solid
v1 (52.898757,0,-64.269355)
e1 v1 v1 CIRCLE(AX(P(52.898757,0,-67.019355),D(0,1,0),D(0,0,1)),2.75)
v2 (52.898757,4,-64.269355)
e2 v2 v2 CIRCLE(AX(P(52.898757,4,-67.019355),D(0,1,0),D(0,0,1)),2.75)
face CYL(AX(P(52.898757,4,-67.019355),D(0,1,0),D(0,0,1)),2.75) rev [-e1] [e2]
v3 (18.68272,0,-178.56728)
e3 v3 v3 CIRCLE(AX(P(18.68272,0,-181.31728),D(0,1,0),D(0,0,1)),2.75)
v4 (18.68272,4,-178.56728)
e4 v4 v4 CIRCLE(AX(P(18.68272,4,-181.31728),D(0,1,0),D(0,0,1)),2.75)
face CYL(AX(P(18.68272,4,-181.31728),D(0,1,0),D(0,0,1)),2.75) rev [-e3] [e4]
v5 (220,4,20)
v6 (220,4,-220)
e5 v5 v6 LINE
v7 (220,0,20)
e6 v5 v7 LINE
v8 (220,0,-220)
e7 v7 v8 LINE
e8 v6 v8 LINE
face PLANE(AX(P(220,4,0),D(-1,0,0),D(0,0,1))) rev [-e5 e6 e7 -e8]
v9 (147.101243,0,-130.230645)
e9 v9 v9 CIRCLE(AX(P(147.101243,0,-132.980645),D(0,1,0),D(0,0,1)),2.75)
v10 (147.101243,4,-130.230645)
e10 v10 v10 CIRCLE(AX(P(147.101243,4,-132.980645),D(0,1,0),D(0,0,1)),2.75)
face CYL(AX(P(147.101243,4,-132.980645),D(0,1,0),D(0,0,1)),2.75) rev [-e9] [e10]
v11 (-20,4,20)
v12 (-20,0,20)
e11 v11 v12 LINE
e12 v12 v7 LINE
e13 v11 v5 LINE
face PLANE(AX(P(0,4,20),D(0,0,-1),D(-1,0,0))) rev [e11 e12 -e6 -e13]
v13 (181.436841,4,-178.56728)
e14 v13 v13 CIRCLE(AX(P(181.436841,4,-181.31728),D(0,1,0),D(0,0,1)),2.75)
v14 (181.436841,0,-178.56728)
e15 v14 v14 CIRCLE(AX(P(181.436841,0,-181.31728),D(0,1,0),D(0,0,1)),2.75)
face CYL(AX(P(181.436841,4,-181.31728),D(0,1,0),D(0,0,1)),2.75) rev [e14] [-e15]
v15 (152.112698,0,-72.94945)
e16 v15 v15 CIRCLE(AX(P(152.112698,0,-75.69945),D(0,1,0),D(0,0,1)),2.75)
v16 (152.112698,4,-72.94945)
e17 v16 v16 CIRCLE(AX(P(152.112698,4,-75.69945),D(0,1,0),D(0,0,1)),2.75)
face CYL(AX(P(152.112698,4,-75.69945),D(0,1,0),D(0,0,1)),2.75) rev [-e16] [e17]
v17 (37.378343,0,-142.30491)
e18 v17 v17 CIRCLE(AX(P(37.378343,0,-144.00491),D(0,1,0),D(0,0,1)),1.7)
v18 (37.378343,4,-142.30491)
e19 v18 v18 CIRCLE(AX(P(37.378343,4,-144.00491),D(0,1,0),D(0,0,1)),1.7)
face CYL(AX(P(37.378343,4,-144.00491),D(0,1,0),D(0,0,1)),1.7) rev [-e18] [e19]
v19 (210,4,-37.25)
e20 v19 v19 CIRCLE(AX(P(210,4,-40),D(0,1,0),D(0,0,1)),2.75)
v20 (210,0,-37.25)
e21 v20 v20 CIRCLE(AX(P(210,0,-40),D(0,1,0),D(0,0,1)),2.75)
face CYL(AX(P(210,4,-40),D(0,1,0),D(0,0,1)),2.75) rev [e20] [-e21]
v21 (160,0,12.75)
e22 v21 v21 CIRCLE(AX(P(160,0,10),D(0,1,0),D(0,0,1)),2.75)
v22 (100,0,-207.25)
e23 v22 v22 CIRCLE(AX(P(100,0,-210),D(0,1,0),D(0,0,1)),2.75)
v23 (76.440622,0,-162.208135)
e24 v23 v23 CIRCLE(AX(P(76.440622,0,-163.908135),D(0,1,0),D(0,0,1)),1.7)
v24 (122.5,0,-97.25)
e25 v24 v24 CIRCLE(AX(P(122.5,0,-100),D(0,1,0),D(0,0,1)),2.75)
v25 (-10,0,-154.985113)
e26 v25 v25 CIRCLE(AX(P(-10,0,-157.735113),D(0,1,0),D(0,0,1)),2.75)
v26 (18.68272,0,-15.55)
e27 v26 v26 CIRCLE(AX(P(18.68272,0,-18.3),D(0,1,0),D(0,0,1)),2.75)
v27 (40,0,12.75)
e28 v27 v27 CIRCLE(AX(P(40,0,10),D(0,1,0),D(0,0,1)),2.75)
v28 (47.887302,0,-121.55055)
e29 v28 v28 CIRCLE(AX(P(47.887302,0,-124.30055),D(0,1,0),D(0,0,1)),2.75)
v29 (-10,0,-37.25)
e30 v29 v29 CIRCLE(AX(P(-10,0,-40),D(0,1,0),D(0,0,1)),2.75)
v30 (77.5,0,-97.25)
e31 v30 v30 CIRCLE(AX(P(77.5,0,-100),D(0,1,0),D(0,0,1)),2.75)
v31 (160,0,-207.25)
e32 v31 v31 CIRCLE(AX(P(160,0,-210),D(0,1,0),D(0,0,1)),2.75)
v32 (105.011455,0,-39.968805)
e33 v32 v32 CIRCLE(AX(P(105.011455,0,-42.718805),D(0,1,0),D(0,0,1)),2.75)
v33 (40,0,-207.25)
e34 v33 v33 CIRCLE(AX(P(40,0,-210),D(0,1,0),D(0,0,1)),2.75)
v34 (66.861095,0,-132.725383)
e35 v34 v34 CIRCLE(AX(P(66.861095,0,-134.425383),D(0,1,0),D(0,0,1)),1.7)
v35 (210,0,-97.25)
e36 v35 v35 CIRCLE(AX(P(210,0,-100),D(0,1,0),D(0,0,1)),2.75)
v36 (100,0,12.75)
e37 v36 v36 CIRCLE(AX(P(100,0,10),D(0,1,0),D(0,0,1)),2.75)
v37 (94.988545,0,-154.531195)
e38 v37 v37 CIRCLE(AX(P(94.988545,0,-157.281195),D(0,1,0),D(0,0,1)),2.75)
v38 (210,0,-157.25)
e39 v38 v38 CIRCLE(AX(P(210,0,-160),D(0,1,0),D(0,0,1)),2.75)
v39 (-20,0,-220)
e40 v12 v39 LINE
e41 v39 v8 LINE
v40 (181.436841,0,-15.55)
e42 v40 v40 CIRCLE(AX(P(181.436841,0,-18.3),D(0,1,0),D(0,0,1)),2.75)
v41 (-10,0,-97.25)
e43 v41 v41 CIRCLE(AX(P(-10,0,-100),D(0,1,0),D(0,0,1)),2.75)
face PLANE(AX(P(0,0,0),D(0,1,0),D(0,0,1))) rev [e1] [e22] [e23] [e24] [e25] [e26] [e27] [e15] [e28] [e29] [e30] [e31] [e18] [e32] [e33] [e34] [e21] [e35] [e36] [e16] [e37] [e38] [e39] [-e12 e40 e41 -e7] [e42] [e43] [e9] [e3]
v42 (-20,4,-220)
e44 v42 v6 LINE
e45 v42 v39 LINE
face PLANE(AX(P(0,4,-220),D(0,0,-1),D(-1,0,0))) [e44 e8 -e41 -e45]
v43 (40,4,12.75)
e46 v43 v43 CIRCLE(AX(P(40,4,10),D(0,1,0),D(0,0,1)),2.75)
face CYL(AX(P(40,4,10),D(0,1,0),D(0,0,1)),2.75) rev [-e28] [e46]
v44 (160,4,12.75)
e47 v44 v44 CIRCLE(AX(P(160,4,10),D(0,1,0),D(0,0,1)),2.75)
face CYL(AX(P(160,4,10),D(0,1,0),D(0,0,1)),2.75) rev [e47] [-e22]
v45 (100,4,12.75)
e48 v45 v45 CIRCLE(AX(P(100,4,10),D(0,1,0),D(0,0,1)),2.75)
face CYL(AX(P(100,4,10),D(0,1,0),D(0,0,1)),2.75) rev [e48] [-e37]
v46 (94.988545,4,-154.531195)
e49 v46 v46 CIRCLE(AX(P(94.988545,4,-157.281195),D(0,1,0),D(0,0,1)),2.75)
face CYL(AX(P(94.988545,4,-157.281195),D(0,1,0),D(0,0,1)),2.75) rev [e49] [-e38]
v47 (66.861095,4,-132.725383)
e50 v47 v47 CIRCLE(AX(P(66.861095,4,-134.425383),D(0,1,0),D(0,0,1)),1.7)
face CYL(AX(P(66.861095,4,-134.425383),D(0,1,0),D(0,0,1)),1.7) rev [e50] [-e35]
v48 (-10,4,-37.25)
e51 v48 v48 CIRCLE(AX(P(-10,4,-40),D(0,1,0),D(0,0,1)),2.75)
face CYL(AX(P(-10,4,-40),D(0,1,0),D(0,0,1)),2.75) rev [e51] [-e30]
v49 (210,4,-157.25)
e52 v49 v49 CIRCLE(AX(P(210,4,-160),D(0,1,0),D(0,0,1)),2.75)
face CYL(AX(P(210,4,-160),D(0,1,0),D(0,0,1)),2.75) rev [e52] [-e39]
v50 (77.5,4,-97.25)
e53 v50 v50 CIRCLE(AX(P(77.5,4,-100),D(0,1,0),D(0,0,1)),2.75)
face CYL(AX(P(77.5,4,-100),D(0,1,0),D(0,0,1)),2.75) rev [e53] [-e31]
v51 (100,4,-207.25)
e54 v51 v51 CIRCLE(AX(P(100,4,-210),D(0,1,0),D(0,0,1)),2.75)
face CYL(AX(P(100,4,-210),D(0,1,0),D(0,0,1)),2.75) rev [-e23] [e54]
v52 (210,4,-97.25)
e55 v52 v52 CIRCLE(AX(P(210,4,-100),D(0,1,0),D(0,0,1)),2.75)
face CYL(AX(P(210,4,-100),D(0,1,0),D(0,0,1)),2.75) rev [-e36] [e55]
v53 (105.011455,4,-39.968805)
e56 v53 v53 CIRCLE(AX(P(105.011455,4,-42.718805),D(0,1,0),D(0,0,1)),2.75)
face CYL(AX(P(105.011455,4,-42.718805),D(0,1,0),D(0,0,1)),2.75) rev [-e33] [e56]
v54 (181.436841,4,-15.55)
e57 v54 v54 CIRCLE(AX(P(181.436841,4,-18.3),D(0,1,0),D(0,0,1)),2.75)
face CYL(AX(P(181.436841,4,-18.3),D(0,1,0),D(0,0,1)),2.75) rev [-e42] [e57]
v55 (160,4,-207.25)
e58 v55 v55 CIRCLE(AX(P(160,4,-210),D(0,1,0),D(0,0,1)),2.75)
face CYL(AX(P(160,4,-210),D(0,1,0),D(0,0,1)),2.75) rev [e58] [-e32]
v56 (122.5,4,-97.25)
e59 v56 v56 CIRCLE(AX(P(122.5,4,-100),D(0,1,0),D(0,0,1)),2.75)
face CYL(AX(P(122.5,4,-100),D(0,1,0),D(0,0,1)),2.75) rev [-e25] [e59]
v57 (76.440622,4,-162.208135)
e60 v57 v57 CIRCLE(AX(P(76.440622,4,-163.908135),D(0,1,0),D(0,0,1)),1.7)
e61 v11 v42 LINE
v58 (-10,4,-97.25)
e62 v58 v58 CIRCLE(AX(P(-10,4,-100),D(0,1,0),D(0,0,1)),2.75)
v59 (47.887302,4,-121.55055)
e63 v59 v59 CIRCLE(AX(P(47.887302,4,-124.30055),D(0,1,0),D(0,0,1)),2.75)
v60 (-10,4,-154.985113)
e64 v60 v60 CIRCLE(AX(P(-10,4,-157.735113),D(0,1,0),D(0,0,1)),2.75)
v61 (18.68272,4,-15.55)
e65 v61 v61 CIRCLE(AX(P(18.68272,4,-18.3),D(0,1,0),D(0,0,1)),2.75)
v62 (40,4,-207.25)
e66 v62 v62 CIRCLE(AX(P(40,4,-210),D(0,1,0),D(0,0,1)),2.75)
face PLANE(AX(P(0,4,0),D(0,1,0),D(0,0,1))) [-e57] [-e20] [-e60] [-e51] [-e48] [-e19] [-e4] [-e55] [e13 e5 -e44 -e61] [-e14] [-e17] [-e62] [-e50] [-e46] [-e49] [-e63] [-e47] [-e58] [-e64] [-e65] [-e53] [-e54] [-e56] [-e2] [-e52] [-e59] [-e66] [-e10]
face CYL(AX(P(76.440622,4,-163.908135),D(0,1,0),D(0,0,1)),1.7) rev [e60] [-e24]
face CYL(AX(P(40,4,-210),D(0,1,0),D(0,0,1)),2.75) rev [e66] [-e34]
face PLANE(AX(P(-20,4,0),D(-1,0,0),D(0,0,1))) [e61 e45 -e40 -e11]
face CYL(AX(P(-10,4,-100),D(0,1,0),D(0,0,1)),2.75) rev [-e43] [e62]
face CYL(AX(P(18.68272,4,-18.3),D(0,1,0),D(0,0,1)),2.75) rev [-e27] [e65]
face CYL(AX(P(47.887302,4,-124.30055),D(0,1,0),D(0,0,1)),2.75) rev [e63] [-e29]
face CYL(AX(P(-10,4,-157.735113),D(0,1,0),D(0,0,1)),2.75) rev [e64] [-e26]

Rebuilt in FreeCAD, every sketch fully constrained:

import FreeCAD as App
import Part
import Sketcher
from FreeCAD import Vector
Q = App.Units.Quantity


def add_polygon(sketch, points):
    """Adds a closed chain of lines whose ends are joined by coincident constraints."""
    first, n = sketch.GeometryCount, len(points)
    for a, b in zip(points, points[1:] + points[:1]):
        sketch.addGeometry(Part.LineSegment(App.Vector(*a, 0), App.Vector(*b, 0)), False)
    for i in range(n):
        sketch.addConstraint(Sketcher.Constraint("Coincident", first + i, 2, first + (i + 1) % n, 1))

doc = App.newDocument("Part")
body = doc.addObject("PartDesign::Body", "Body")

# Sketch on XZ plane
sketch1 = body.newObject("Sketcher::SketchObject", "Sketch")
sketch1.AttachmentSupport = (doc.getObject("XZ_Plane"), [""])
sketch1.MapMode = "FlatFace"
add_polygon(sketch1, [(-20, -220), (-20, 20), (220, 20), (220, -220)])  # lines 0-3
sketch1.addConstraint(Sketcher.Constraint("Vertical", 0))
sketch1.addConstraint(Sketcher.Constraint("Horizontal", 1))
sketch1.addConstraint(Sketcher.Constraint("Vertical", 2))
sketch1.addConstraint(Sketcher.Constraint("Horizontal", 3))
sketch1.addConstraint(Sketcher.Constraint("Equal", 3, 0))
sketch1.addConstraint(Sketcher.Constraint("DistanceX", 1, 1, 1, 2, Q("240 mm")))
sketch1.addConstraint(Sketcher.Constraint("DistanceX", 0, 2, -1, 1, Q("20 mm")))
sketch1.addConstraint(Sketcher.Constraint("DistanceY", -1, 1, 0, 2, Q("20 mm")))
pad1 = body.newObject("PartDesign::Pad", "Pad")
pad1.Profile = sketch1
pad1.Length = 4
pad1.Reversed = True

# Sketch on XZ plane
sketch2 = body.newObject("Sketcher::SketchObject", "Sketch001")
sketch2.AttachmentSupport = (doc.getObject("XZ_Plane"), [""])
sketch2.MapMode = "FlatFace"
sketch2.AttachmentOffset = App.Placement(Vector(0, 0, -4), App.Rotation())
sketch2.addGeometry(Part.Circle(Vector(18.7, -181.3, 0), Vector(0, 0, 1), 2.8), False)
sketch2.addGeometry(Part.Circle(Vector(181.4, -181.3, 0), Vector(0, 0, 1), 2.8), False)
sketch2.addGeometry(Part.Circle(Vector(181.4, -18.3, 0), Vector(0, 0, 1), 2.8), False)
sketch2.addGeometry(Part.Circle(Vector(18.7, -18.3, 0), Vector(0, 0, 1), 2.8), False)
sketch2.addGeometry(Part.Circle(Vector(40, -210, 0), Vector(0, 0, 1), 2.8), False)
sketch2.addGeometry(Part.Circle(Vector(100, -210, 0), Vector(0, 0, 1), 2.8), False)
sketch2.addGeometry(Part.Circle(Vector(160, -210, 0), Vector(0, 0, 1), 2.8), False)
sketch2.addGeometry(Part.Circle(Vector(210, -160, 0), Vector(0, 0, 1), 2.8), False)
sketch2.addGeometry(Part.Circle(Vector(210, -100, 0), Vector(0, 0, 1), 2.8), False)
sketch2.addGeometry(Part.Circle(Vector(210, -40, 0), Vector(0, 0, 1), 2.8), False)
sketch2.addGeometry(Part.Circle(Vector(160, 10, 0), Vector(0, 0, 1), 2.8), False)
sketch2.addGeometry(Part.Circle(Vector(100, 10, 0), Vector(0, 0, 1), 2.8), False)
sketch2.addGeometry(Part.Circle(Vector(40, 10, 0), Vector(0, 0, 1), 2.8), False)
sketch2.addGeometry(Part.Circle(Vector(-10, -40, 0), Vector(0, 0, 1), 2.8), False)
sketch2.addGeometry(Part.Circle(Vector(-10, -100, 0), Vector(0, 0, 1), 2.8), False)
sketch2.addGeometry(Part.Circle(Vector(-10, -157.7, 0), Vector(0, 0, 1), 2.8), False)
sketch2.addGeometry(Part.Circle(Vector(95, -157.3, 0), Vector(0, 0, 1), 2.8), False)
sketch2.addGeometry(Part.Circle(Vector(47.9, -124.3, 0), Vector(0, 0, 1), 2.8), False)
sketch2.addGeometry(Part.Circle(Vector(105, -42.7, 0), Vector(0, 0, 1), 2.8), False)
sketch2.addGeometry(Part.Circle(Vector(147.1, -133, 0), Vector(0, 0, 1), 2.8), False)
sketch2.addGeometry(Part.Circle(Vector(152.1, -75.7, 0), Vector(0, 0, 1), 2.8), False)
sketch2.addGeometry(Part.Circle(Vector(52.9, -67, 0), Vector(0, 0, 1), 2.8), False)
sketch2.addGeometry(Part.Circle(Vector(77.5, -100, 0), Vector(0, 0, 1), 2.8), False)
sketch2.addGeometry(Part.Circle(Vector(122.5, -100, 0), Vector(0, 0, 1), 2.8), False)
sketch2.addConstraint(Sketcher.Constraint("Equal", 0, 1))
sketch2.addConstraint(Sketcher.Constraint("Equal", 1, 2))
sketch2.addConstraint(Sketcher.Constraint("Equal", 2, 3))
sketch2.addConstraint(Sketcher.Constraint("Equal", 3, 4))
sketch2.addConstraint(Sketcher.Constraint("Equal", 4, 5))
sketch2.addConstraint(Sketcher.Constraint("Equal", 5, 6))
sketch2.addConstraint(Sketcher.Constraint("Equal", 6, 7))
sketch2.addConstraint(Sketcher.Constraint("Equal", 7, 8))
sketch2.addConstraint(Sketcher.Constraint("Equal", 8, 9))
sketch2.addConstraint(Sketcher.Constraint("Equal", 9, 10))
sketch2.addConstraint(Sketcher.Constraint("Equal", 10, 11))
sketch2.addConstraint(Sketcher.Constraint("Equal", 11, 12))
sketch2.addConstraint(Sketcher.Constraint("Equal", 12, 13))
sketch2.addConstraint(Sketcher.Constraint("Equal", 13, 14))
sketch2.addConstraint(Sketcher.Constraint("Equal", 14, 15))
sketch2.addConstraint(Sketcher.Constraint("Equal", 15, 16))
sketch2.addConstraint(Sketcher.Constraint("Equal", 16, 17))
sketch2.addConstraint(Sketcher.Constraint("Equal", 17, 18))
sketch2.addConstraint(Sketcher.Constraint("Equal", 18, 19))
sketch2.addConstraint(Sketcher.Constraint("Equal", 19, 20))
sketch2.addConstraint(Sketcher.Constraint("Equal", 20, 21))
sketch2.addConstraint(Sketcher.Constraint("Equal", 21, 22))
sketch2.addConstraint(Sketcher.Constraint("Equal", 22, 23))
sketch2.addConstraint(Sketcher.Constraint("Horizontal", 0, 3, 1, 3))
sketch2.addConstraint(Sketcher.Constraint("Horizontal", 2, 3, 3, 3))
sketch2.addConstraint(Sketcher.Constraint("Horizontal", 4, 3, 5, 3))
sketch2.addConstraint(Sketcher.Constraint("Horizontal", 5, 3, 6, 3))
sketch2.addConstraint(Sketcher.Constraint("Horizontal", 10, 3, 11, 3))
sketch2.addConstraint(Sketcher.Constraint("Horizontal", 11, 3, 12, 3))
sketch2.addConstraint(Sketcher.Constraint("Horizontal", 9, 3, 13, 3))
sketch2.addConstraint(Sketcher.Constraint("Horizontal", 8, 3, 14, 3))
sketch2.addConstraint(Sketcher.Constraint("Horizontal", 14, 3, 22, 3))
sketch2.addConstraint(Sketcher.Constraint("Horizontal", 22, 3, 23, 3))
sketch2.addConstraint(Sketcher.Constraint("Vertical", 1, 3, 2, 3))
sketch2.addConstraint(Sketcher.Constraint("Vertical", 0, 3, 3, 3))
sketch2.addConstraint(Sketcher.Constraint("Vertical", 7, 3, 8, 3))
sketch2.addConstraint(Sketcher.Constraint("Vertical", 8, 3, 9, 3))
sketch2.addConstraint(Sketcher.Constraint("Vertical", 6, 3, 10, 3))
sketch2.addConstraint(Sketcher.Constraint("Vertical", 5, 3, 11, 3))
sketch2.addConstraint(Sketcher.Constraint("Vertical", 4, 3, 12, 3))
sketch2.addConstraint(Sketcher.Constraint("Vertical", 13, 3, 14, 3))
sketch2.addConstraint(Sketcher.Constraint("Vertical", 14, 3, 15, 3))
sketch2.addConstraint(Sketcher.Constraint("Diameter", 0, Q("5.5 mm")))
sketch2.addConstraint(Sketcher.Constraint("DistanceX", -1, 1, 4, 3, Q("40 mm")))
sketch2.addConstraint(Sketcher.Constraint("DistanceY", 4, 3, -1, 1, Q("210 mm")))
sketch2.addConstraint(Sketcher.Constraint("DistanceX", -1, 1, 5, 3, Q("100 mm")))
sketch2.addConstraint(Sketcher.Constraint("DistanceX", -1, 1, 6, 3, Q("160 mm")))
sketch2.addConstraint(Sketcher.Constraint("DistanceX", -1, 1, 7, 3, Q("210 mm")))
sketch2.addConstraint(Sketcher.Constraint("DistanceY", 7, 3, -1, 1, Q("160 mm")))
sketch2.addConstraint(Sketcher.Constraint("DistanceY", 8, 3, -1, 1, Q("100 mm")))
sketch2.addConstraint(Sketcher.Constraint("DistanceY", 9, 3, -1, 1, Q("40 mm")))
sketch2.addConstraint(Sketcher.Constraint("DistanceY", -1, 1, 10, 3, Q("10 mm")))
sketch2.addConstraint(Sketcher.Constraint("DistanceX", 13, 3, -1, 1, Q("10 mm")))
sketch2.addConstraint(Sketcher.Constraint("DistanceX", 22, 3, 23, 3, Q("45 mm")))
sketch2.addConstraint(Sketcher.Constraint("DistanceY", 2, 3, -1, 1, Q("18.3 mm")))
sketch2.addConstraint(Sketcher.Constraint("DistanceX", -1, 1, 22, 3, Q("77.5 mm")))
sketch2.addConstraint(Sketcher.Constraint("DistanceX", 19, 3, 1, 3, Q("34.335599 mm")))
sketch2.addConstraint(Sketcher.Constraint("DistanceX", -1, 1, 0, 3, Q("18.68272 mm")))
sketch2.addConstraint(Sketcher.Constraint("DistanceY", 0, 3, -1, 1, Q("181.31728 mm")))
sketch2.addConstraint(Sketcher.Constraint("DistanceX", -1, 1, 1, 3, Q("181.436841 mm")))
sketch2.addConstraint(Sketcher.Constraint("DistanceY", 17, 3, -1, 1, Q("124.30055 mm")))
sketch2.addConstraint(Sketcher.Constraint("DistanceY", 20, 3, -1, 1, Q("75.69945 mm")))
sketch2.addConstraint(Sketcher.Constraint("DistanceY", 16, 3, 19, 3, Q("24.30055 mm")))
sketch2.addConstraint(Sketcher.Constraint("DistanceY", 21, 3, 18, 3, Q("24.30055 mm")))
sketch2.addConstraint(Sketcher.Constraint("DistanceY", 15, 3, -1, 1, Q("157.735113 mm")))
sketch2.addConstraint(Sketcher.Constraint("DistanceX", -1, 1, 16, 3, Q("94.988545 mm")))
sketch2.addConstraint(Sketcher.Constraint("DistanceY", 16, 3, -1, 1, Q("157.281195 mm")))
sketch2.addConstraint(Sketcher.Constraint("DistanceX", -1, 1, 17, 3, Q("47.887302 mm")))
sketch2.addConstraint(Sketcher.Constraint("DistanceX", -1, 1, 18, 3, Q("105.011455 mm")))
sketch2.addConstraint(Sketcher.Constraint("DistanceY", 18, 3, -1, 1, Q("42.718805 mm")))
sketch2.addConstraint(Sketcher.Constraint("DistanceX", -1, 1, 20, 3, Q("152.112698 mm")))
sketch2.addConstraint(Sketcher.Constraint("DistanceX", -1, 1, 21, 3, Q("52.898757 mm")))
doc.recompute()
hole = body.newObject("PartDesign::Hole", "Hole")
hole.Profile = sketch2
hole.ThreadType = "None"
hole.Diameter = 5.5
hole.DepthType = "ThroughAll"
hole.Reversed = True

# Sketch on XZ plane
sketch3 = body.newObject("Sketcher::SketchObject", "Sketch002")
sketch3.AttachmentSupport = (doc.getObject("XZ_Plane"), [""])
sketch3.MapMode = "FlatFace"
sketch3.AttachmentOffset = App.Placement(Vector(0, 0, -4), App.Rotation())
sketch3.addGeometry(Part.Circle(Vector(37.4, -144, 0), Vector(0, 0, 1), 1.7), False)
sketch3.addGeometry(Part.Circle(Vector(76.4, -163.9, 0), Vector(0, 0, 1), 1.7), False)
sketch3.addGeometry(Part.Circle(Vector(66.9, -134.4, 0), Vector(0, 0, 1), 1.7), False)
sketch3.addConstraint(Sketcher.Constraint("Equal", 0, 1))
sketch3.addConstraint(Sketcher.Constraint("Equal", 1, 2))
sketch3.addConstraint(Sketcher.Constraint("Diameter", 0, Q("3.4 mm")))
sketch3.addConstraint(Sketcher.Constraint("DistanceY", 0, 3, -1, 1, Q("144.00491 mm")))
sketch3.addConstraint(Sketcher.Constraint("DistanceX", -1, 1, 1, 3, Q("76.440622 mm")))
sketch3.addConstraint(Sketcher.Constraint("DistanceX", 0, 3, 1, 3, Q("39.062279 mm")))
sketch3.addConstraint(Sketcher.Constraint("DistanceY", 1, 3, -1, 1, Q("163.908135 mm")))
sketch3.addConstraint(Sketcher.Constraint("DistanceX", -1, 1, 2, 3, Q("66.861095 mm")))
sketch3.addConstraint(Sketcher.Constraint("DistanceY", 2, 3, -1, 1, Q("134.425383 mm")))
doc.recompute()
hole2 = body.newObject("PartDesign::Hole", "Hole001")
hole2.Profile = sketch3
hole2.ThreadType = "None"
hole2.Diameter = 3.4
hole2.DepthType = "ThroughAll"
hole2.Reversed = True

doc.recompute()
